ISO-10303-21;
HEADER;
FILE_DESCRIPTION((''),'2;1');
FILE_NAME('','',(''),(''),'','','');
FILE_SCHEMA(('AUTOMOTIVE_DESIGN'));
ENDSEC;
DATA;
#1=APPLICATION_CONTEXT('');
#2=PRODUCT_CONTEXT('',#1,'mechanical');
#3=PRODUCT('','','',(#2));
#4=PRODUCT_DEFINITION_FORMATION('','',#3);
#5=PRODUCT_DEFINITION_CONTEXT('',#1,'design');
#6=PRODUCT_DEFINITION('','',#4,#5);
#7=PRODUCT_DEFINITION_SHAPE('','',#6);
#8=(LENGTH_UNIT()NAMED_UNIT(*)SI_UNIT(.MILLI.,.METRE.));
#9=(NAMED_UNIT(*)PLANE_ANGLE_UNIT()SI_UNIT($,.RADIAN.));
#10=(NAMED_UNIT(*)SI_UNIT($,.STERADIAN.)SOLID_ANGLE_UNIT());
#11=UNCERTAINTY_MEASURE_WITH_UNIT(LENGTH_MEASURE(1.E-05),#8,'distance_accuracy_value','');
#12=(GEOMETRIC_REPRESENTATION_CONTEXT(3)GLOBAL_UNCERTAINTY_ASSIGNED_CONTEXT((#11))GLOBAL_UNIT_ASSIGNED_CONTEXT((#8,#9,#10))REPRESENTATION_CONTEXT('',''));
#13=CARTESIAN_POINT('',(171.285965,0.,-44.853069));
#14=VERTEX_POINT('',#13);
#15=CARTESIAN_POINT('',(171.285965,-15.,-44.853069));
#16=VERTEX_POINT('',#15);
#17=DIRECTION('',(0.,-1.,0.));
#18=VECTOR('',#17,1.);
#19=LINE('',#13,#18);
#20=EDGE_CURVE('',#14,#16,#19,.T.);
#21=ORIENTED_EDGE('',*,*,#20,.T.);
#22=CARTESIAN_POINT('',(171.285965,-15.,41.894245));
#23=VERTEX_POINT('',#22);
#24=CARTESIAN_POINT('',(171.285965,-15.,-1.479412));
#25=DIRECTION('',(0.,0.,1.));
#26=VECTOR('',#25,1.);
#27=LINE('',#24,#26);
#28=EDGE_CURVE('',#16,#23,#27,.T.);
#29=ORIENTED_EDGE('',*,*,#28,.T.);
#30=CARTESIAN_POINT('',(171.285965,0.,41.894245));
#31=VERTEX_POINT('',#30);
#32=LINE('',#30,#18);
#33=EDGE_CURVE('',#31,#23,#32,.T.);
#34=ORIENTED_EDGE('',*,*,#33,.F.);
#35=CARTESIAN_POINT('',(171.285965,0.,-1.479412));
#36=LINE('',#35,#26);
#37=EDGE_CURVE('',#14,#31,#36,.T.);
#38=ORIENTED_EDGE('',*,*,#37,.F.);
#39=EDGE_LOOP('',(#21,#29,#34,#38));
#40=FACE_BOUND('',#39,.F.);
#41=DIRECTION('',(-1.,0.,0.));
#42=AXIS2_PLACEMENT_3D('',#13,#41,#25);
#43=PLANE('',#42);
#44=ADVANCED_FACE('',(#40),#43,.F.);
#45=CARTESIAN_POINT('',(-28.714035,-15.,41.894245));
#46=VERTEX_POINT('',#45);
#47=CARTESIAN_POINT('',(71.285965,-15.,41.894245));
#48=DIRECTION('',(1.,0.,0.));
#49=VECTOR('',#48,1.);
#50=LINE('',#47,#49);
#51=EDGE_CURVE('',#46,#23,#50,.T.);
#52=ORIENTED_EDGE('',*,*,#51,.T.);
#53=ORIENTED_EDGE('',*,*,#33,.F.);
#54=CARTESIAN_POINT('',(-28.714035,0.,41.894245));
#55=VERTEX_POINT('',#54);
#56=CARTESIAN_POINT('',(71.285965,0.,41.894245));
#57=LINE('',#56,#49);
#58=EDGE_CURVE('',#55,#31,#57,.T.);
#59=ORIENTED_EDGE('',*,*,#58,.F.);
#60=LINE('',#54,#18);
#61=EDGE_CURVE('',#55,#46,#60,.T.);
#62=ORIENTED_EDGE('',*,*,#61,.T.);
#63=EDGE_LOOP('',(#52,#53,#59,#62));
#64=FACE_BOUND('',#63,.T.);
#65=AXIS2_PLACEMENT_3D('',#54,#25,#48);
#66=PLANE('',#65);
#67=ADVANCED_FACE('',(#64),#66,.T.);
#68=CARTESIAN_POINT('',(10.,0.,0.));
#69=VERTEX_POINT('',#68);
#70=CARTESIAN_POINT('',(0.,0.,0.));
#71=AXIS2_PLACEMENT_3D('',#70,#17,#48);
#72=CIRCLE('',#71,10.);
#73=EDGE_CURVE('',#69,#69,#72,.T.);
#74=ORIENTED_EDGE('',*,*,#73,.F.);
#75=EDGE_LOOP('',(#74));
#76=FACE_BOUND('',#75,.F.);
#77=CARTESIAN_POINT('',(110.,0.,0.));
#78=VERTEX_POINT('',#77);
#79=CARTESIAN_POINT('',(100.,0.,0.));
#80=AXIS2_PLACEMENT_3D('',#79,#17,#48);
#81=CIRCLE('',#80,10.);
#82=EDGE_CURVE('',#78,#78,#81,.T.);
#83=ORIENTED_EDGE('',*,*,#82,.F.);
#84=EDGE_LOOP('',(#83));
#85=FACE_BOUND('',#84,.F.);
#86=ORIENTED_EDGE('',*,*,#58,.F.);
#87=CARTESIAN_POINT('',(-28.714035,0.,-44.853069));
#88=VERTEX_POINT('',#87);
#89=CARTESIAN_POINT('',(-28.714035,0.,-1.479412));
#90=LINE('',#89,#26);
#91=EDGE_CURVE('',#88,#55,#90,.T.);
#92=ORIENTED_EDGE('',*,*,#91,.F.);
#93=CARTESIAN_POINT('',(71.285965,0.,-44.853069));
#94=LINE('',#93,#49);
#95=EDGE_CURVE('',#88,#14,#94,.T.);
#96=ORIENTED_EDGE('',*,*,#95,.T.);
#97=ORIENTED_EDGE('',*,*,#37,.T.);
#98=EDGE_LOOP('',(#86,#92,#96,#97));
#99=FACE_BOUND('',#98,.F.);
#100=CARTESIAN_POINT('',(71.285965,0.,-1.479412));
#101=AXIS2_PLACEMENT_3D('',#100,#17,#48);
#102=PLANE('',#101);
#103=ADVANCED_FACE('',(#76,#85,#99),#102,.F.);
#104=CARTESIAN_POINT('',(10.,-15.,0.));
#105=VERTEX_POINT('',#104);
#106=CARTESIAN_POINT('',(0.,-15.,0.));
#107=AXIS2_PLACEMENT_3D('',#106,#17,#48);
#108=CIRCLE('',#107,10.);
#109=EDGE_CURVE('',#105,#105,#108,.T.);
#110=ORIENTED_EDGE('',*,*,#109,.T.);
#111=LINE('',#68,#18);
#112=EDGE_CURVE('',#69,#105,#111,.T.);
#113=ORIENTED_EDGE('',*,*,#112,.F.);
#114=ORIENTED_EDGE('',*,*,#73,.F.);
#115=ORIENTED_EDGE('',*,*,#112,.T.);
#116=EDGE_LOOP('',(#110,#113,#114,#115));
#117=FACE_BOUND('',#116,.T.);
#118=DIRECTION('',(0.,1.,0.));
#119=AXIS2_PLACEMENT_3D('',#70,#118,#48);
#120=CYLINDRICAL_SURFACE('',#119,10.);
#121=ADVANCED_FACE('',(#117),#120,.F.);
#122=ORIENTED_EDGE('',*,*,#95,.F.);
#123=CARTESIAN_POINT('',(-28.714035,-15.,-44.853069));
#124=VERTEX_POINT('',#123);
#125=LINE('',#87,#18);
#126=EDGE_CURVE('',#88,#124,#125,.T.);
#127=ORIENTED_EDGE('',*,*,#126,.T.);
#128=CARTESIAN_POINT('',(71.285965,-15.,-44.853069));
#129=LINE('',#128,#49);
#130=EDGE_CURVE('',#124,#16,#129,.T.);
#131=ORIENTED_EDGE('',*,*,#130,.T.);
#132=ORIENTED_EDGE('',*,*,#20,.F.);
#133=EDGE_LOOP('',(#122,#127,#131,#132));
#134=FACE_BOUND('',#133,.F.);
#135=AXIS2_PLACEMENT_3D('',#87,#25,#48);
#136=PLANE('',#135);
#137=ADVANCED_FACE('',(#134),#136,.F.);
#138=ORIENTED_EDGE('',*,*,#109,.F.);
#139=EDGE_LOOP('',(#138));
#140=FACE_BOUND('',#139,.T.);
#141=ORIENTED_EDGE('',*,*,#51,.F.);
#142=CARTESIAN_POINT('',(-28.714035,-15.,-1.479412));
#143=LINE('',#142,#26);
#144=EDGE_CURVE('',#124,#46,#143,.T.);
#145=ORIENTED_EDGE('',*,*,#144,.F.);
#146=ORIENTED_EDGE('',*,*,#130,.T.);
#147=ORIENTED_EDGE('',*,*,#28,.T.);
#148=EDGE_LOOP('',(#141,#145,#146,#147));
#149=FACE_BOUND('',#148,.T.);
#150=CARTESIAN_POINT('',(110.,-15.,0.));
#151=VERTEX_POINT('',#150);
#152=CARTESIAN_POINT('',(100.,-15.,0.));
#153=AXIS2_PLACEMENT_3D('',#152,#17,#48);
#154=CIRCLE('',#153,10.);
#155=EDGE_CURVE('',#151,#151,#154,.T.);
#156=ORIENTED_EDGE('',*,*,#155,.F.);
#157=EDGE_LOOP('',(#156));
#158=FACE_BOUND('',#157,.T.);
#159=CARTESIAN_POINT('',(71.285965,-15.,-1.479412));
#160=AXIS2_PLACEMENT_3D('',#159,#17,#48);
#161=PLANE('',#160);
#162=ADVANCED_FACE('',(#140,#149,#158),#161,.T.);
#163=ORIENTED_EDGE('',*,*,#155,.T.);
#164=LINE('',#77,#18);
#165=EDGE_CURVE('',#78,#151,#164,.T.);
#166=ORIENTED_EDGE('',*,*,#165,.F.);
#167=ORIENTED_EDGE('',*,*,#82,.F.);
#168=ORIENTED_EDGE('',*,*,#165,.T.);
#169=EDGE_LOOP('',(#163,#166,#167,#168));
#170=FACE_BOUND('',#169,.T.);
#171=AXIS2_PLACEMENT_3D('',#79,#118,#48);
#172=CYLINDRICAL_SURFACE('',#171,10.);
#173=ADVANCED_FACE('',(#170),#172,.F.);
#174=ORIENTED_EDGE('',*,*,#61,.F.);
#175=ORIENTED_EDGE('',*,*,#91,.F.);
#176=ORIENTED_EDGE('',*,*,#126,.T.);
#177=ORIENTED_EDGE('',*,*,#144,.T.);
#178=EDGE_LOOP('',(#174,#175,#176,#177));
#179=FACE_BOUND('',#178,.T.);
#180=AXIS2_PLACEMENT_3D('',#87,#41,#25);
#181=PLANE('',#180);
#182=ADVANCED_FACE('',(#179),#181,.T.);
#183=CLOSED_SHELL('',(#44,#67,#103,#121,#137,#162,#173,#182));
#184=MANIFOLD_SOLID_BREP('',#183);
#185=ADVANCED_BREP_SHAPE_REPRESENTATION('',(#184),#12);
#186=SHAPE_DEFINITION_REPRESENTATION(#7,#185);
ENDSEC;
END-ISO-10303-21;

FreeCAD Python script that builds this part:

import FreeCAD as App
import Part
import Sketcher
from FreeCAD import Vector
Q = App.Units.Quantity

doc = App.newDocument("Part")
params = doc.addObject("Spreadsheet::Sheet", "Params")
for row, (alias, value) in enumerate([
    ("sketch1_diameter", "20 mm"),
    ("sketch1_width", "200 mm"),
    ("pad1_length", "15 mm"),
], start=1):
    params.set(f"A{row}", alias)
    params.set(f"B{row}", "=" + value)
    params.setAlias(f"B{row}", alias)

body = doc.addObject("PartDesign::Body", "Body")

# Sketch on XZ plane
sketch1 = body.newObject("Sketcher::SketchObject", "Sketch")
sketch1.AttachmentSupport = (doc.getObject("XZ_Plane"), [""])
sketch1.MapMode = "FlatFace"
sketch1.addGeometry([
    Part.LineSegment(Vector(-29, 42, 0), Vector(-29, -45, 0)),  # 0
    Part.LineSegment(Vector(-29, -45, 0), Vector(171, -45, 0)),  # 1
    Part.LineSegment(Vector(171, -45, 0), Vector(171, 42, 0)),  # 2
    Part.LineSegment(Vector(171, 42, 0), Vector(-29, 42, 0)),  # 3
    Part.Circle(Vector(0, 0, 0), Vector(0, 0, 1), 10),  # 4
    Part.Circle(Vector(100, 0, 0), Vector(0, 0, 1), 10),  # 5
], False)
sketch1.addConstraint([
    Sketcher.Constraint("Coincident", 0, 2, 1, 1),
    Sketcher.Constraint("Coincident", 1, 2, 2, 1),
    Sketcher.Constraint("Coincident", 2, 2, 3, 1),
    Sketcher.Constraint("Coincident", 3, 2, 0, 1),
    Sketcher.Constraint("Vertical", 0),
    Sketcher.Constraint("Horizontal", 1),
    Sketcher.Constraint("Vertical", 2),
    Sketcher.Constraint("Horizontal", 3),
    Sketcher.Constraint("Coincident", 4, 3, -1, 1),
    Sketcher.Constraint("Equal", 4, 5),
    Sketcher.Constraint("PointOnObject", 5, 3, -1),
    Sketcher.Constraint("Diameter", 4, Q("20 mm")),
    Sketcher.Constraint("DistanceX", 1, 1, 1, 2, Q("200 mm")),
    Sketcher.Constraint("DistanceX", -1, 1, 5, 3, Q("100 mm")),
    Sketcher.Constraint("DistanceY", 0, 2, 0, 1, Q("86.747314 mm")),
    Sketcher.Constraint("DistanceY", 0, 2, -1, 1, Q("44.853069 mm")),
    Sketcher.Constraint("DistanceX", 0, 2, -1, 1, Q("28.714035 mm")),
])
sketch1.setExpression("Constraints[11]", "Params.sketch1_diameter")
sketch1.setExpression("Constraints[12]", "Params.sketch1_width")
pad1 = body.newObject("PartDesign::Pad", "Pad")
pad1.Profile = sketch1
pad1.setExpression("Length", "Params.pad1_length")

doc.recompute()
